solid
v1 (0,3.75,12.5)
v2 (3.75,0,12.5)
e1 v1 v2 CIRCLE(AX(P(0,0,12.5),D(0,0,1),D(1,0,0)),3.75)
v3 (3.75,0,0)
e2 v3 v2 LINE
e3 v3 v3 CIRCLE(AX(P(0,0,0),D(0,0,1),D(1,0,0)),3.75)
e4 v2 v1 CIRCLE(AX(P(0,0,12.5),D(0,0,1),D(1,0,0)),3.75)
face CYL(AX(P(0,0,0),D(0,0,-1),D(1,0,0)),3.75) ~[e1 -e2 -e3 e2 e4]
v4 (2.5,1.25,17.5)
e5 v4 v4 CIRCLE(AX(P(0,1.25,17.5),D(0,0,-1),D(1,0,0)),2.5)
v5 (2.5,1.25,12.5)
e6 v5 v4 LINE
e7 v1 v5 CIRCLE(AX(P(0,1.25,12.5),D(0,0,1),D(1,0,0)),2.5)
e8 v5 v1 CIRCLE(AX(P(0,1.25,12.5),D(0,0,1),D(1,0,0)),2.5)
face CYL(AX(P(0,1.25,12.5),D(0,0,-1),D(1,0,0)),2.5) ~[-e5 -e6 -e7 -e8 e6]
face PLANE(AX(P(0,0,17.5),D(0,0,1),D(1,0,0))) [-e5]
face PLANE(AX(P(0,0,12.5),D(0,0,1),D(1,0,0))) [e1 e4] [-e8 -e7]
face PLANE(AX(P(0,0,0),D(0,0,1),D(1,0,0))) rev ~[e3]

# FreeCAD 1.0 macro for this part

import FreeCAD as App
import Part
import Sketcher

V = App.Vector

doc = App.newDocument("Part")
body = doc.addObject("PartDesign::Body", "Body")

# Sketch on XY plane
sketch1 = body.newObject("Sketcher::SketchObject", "Sketch")
sketch1.AttachmentSupport = (doc.getObject("XY_Plane"), [""])
sketch1.MapMode = "FlatFace"
sketch1.addGeometry(Part.Circle(V(0, 0, 0), V(0, 0, 1), 3.8), False)
sketch1.addConstraint(Sketcher.Constraint("Coincident", 0, 3, -1, 1))
sketch1.addConstraint(Sketcher.Constraint("Diameter", 0, 7.5))
pad1 = body.newObject("PartDesign::Pad", "Pad")
pad1.Profile = sketch1
pad1.Length = 12.5

# Sketch on XY plane
sketch2 = body.newObject("Sketcher::SketchObject", "Sketch001")
sketch2.AttachmentSupport = (doc.getObject("XY_Plane"), [""])
sketch2.MapMode = "FlatFace"
sketch2.AttachmentOffset = App.Placement(V(0, 0, 12.5), App.Rotation())
sketch2.addGeometry(Part.Circle(V(0, 1.2, 0), V(0, 0, 1), 2.5), False)
sketch2.addConstraint(Sketcher.Constraint("PointOnObject", 0, 3, -2))
sketch2.addConstraint(Sketcher.Constraint("Diameter", 0, 5.0))
sketch2.addConstraint(Sketcher.Constraint("DistanceY", -1, 1, 0, 3, 1.25))
pad2 = body.newObject("PartDesign::Pad", "Pad001")
pad2.Profile = sketch2
pad2.Length = 5

doc.recompute()
